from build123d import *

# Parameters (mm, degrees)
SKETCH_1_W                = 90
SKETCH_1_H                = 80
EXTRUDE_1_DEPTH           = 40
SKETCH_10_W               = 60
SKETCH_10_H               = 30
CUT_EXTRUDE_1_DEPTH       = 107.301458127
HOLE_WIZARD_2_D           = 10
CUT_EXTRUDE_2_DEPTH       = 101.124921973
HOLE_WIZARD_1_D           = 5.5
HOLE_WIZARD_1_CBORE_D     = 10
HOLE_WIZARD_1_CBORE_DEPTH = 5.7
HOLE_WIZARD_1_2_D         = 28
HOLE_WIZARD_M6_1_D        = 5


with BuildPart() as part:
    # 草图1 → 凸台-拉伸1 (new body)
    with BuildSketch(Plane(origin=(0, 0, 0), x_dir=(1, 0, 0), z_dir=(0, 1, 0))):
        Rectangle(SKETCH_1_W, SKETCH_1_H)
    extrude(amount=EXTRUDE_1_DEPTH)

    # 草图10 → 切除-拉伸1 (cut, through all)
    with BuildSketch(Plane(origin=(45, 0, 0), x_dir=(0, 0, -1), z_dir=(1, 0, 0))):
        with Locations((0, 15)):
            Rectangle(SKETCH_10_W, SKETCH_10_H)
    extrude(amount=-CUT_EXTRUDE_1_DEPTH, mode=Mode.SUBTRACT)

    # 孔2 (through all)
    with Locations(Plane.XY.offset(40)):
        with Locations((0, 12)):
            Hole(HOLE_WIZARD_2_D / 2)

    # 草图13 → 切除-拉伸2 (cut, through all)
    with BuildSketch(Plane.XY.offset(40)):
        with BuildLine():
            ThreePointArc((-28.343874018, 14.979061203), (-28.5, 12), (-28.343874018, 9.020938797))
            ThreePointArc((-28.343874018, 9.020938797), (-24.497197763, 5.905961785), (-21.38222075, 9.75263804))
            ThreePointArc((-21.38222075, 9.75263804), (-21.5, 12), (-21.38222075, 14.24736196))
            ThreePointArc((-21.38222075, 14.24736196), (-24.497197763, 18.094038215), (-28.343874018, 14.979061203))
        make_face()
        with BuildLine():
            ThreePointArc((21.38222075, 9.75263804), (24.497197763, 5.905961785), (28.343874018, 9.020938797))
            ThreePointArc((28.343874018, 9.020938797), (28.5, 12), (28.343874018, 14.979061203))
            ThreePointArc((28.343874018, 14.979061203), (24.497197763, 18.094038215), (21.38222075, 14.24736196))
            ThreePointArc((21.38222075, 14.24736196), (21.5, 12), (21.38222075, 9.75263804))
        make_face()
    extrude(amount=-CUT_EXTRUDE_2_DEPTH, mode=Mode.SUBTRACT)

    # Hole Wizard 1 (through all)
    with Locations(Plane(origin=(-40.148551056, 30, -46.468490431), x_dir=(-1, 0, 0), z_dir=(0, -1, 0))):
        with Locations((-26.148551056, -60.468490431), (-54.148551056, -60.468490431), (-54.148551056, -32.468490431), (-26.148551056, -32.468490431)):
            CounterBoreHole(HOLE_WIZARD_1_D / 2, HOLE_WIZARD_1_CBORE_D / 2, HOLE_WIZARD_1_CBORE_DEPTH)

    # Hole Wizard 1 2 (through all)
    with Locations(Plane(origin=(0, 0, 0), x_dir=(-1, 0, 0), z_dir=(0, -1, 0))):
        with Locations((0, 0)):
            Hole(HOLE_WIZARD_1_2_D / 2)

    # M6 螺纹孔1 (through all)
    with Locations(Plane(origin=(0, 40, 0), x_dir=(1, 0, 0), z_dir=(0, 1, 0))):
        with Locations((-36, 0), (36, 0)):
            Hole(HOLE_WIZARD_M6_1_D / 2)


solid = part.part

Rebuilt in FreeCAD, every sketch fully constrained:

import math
import FreeCAD as App
import Part
import Sketcher

V = App.Vector
Q = App.Units.Quantity

doc = App.newDocument("Part")
params = doc.addObject("Spreadsheet::Sheet", "Params")
for row, (alias, value) in enumerate([
    ("sketch1_width", "90 mm"),
    ("sketch1_height", "80 mm"),
    ("pad1_length", "40 mm"),
    ("sketch2_width", "30 mm"),
    ("sketch2_height", "60 mm"),
    ("sketch3_diameter", "10 mm"),
    ("hole_diameter", "10 mm"),
    ("sketch4_radius", "28.5 mm"),
    ("sketch4_radius2", "3.5 mm"),
    ("sketch5_diameter", "5.5 mm"),
    ("hole2_diameter", "5.5 mm"),
    ("hole2_cbore_diameter", "10 mm"),
    ("hole2_cbore_depth", "5.7 mm"),
    ("sketch6_diameter", "28 mm"),
    ("hole3_diameter", "28 mm"),
    ("sketch7_diameter", "5 mm"),
    ("hole4_diameter", "5 mm"),
], start=1):
    params.set(f"A{row}", alias)
    params.set(f"B{row}", "=" + value)
    params.setAlias(f"B{row}", alias)

body = doc.addObject("PartDesign::Body", "Body")

sketch1 = doc.addObject("Sketcher::SketchObject", "Sketch")
body.addObject(sketch1)
sketch1.AttachmentSupport = (doc.XZ_Plane, [""])
sketch1.MapMode = "FlatFace"
sketch1.addGeometry([
    Part.LineSegment(V(-45, -40, 0), V(-45, 40, 0)),
    Part.LineSegment(V(-45, 40, 0), V(45, 40, 0)),
    Part.LineSegment(V(45, 40, 0), V(45, -40, 0)),
    Part.LineSegment(V(45, -40, 0), V(-45, -40, 0)),
], False)
sketch1.addConstraint([
    Sketcher.Constraint("Coincident", 0, 2, 1, 1),
    Sketcher.Constraint("Coincident", 1, 2, 2, 1),
    Sketcher.Constraint("Coincident", 2, 2, 3, 1),
    Sketcher.Constraint("Coincident", 3, 2, 0, 1),
    Sketcher.Constraint("Vertical", 0),
    Sketcher.Constraint("Horizontal", 1),
    Sketcher.Constraint("Vertical", 2),
    Sketcher.Constraint("Horizontal", 3),
    Sketcher.Constraint("Symmetric", 0, 2, 2, 2, -1, 1),
    Sketcher.Constraint("DistanceX", 1, 1, 1, 2, Q("90 mm")),
    Sketcher.Constraint("DistanceY", 0, 1, 0, 2, Q("80 mm")),
])
sketch1.setExpression("Constraints[9]", "Params.sketch1_width")
sketch1.setExpression("Constraints[10]", "Params.sketch1_height")
pad1 = doc.addObject("PartDesign::Pad", "Pad")
body.addObject(pad1)
pad1.Profile = sketch1
pad1.setExpression("Length", "Params.pad1_length")
pad1.Reversed = True

sketch2 = doc.addObject("Sketcher::SketchObject", "Sketch001")
body.addObject(sketch2)
sketch2.AttachmentSupport = (doc.YZ_Plane, [""])
sketch2.MapMode = "FlatFace"
sketch2.AttachmentOffset = App.Placement(V(0, 0, 45), App.Rotation())
sketch2.addGeometry([
    Part.LineSegment(V(30, 30, 0), V(0, 30, 0)),
    Part.LineSegment(V(0, 30, 0), V(0, -30, 0)),
    Part.LineSegment(V(0, -30, 0), V(30, -30, 0)),
    Part.LineSegment(V(30, -30, 0), V(30, 30, 0)),
], False)
sketch2.addConstraint([
    Sketcher.Constraint("Coincident", 0, 2, 1, 1),
    Sketcher.Constraint("Coincident", 1, 2, 2, 1),
    Sketcher.Constraint("Coincident", 2, 2, 3, 1),
    Sketcher.Constraint("Coincident", 3, 2, 0, 1),
    Sketcher.Constraint("Horizontal", 0),
    Sketcher.Constraint("Vertical", 1),
    Sketcher.Constraint("Horizontal", 2),
    Sketcher.Constraint("Vertical", 3),
    Sketcher.Constraint("Symmetric", 0, 2, 1, 2, -1, 1),
    Sketcher.Constraint("DistanceX", 0, 2, 0, 1, Q("30 mm")),
    Sketcher.Constraint("DistanceY", 1, 2, 1, 1, Q("60 mm")),
])
sketch2.setExpression("Constraints[9]", "Params.sketch2_width")
sketch2.setExpression("Constraints[10]", "Params.sketch2_height")
pocket1 = doc.addObject("PartDesign::Pocket", "Pocket")
body.addObject(pocket1)
pocket1.Profile = sketch2
pocket1.Type = "ThroughAll"

sketch3 = doc.addObject("Sketcher::SketchObject", "Sketch002")
body.addObject(sketch3)
sketch3.AttachmentSupport = (doc.XY_Plane, [""])
sketch3.MapMode = "FlatFace"
sketch3.AttachmentOffset = App.Placement(V(0, 0, 40), App.Rotation())
sketch3.addGeometry(Part.Circle(V(0, 12, 0), V(0, 0, 1), 5), False)
sketch3.addConstraint([
    Sketcher.Constraint("PointOnObject", 0, 3, -2),
    Sketcher.Constraint("Diameter", 0, Q("10 mm")),
    Sketcher.Constraint("DistanceY", -1, 1, 0, 3, Q("12 mm")),
])
sketch3.setExpression("Constraints[1]", "Params.sketch3_diameter")
doc.recompute()
hole = doc.addObject("PartDesign::Hole", "Hole")
body.addObject(hole)
hole.Profile = sketch3
hole.ThreadType = "None"
hole.setExpression("Diameter", "Params.hole_diameter")
hole.DepthType = "ThroughAll"

sketch4 = doc.addObject("Sketcher::SketchObject", "Sketch003")
body.addObject(sketch4)
sketch4.AttachmentSupport = (doc.XY_Plane, [""])
sketch4.MapMode = "FlatFace"
sketch4.AttachmentOffset = App.Placement(V(0, 0, 40), App.Rotation())
sketch4.addGeometry([
    Part.ArcOfCircle(Part.Circle(V(0, 12, 0), V(0, 0, 1), 28.5), math.radians(174), math.radians(186)),
    Part.ArcOfCircle(Part.Circle(V(-24.9, 9.4, 0), V(0, 0, 1), 3.5), math.radians(-174), math.radians(6)),
    Part.ArcOfCircle(Part.Circle(V(0, 12, 0), V(0, 0, 1), 21.5), math.radians(174), math.radians(186)),
    Part.ArcOfCircle(Part.Circle(V(-24.9, 14.6, 0), V(0, 0, 1), 3.5), math.radians(-6), math.radians(174)),
    Part.ArcOfCircle(Part.Circle(V(24.9, 9.4, 0), V(0, 0, 1), 3.5), math.radians(174), math.radians(354)),
    Part.ArcOfCircle(Part.Circle(V(0, 12, 0), V(0, 0, 1), 28.5), math.radians(-6), math.radians(6)),
    Part.ArcOfCircle(Part.Circle(V(24.9, 14.6, 0), V(0, 0, 1), 3.5), math.radians(6), math.radians(186)),
    Part.ArcOfCircle(Part.Circle(V(0, 12, 0), V(0, 0, 1), 21.5), math.radians(-6), math.radians(6)),
], False)
sketch4.addConstraint([
    Sketcher.Constraint("Tangent", 0, 2, 1, 1),
    Sketcher.Constraint("Tangent", 1, 2, 2, 2),
    Sketcher.Constraint("Tangent", 2, 1, 3, 1),
    Sketcher.Constraint("Tangent", 3, 2, 0, 1),
    Sketcher.Constraint("Tangent", 4, 2, 5, 1),
    Sketcher.Constraint("Tangent", 5, 2, 6, 1),
    Sketcher.Constraint("Tangent", 6, 2, 7, 2),
    Sketcher.Constraint("Tangent", 7, 1, 4, 1),
    Sketcher.Constraint("Coincident", 2, 3, 0, 3),
    Sketcher.Constraint("Coincident", 5, 3, 0, 3),
    Sketcher.Constraint("Coincident", 7, 3, 0, 3),
    Sketcher.Constraint("Equal", 3, 4),
    Sketcher.Constraint("Equal", 0, 5),
    Sketcher.Constraint("Symmetric", 1, 3, 4, 3, -2),
    Sketcher.Constraint("Horizontal", 3, 3, 6, 3),
    Sketcher.Constraint("Vertical", 1, 3, 3, 3),
    Sketcher.Constraint("Radius", 0, Q("28.5 mm")),
    Sketcher.Constraint("Radius", 1, Q("3.5 mm")),
    Sketcher.Constraint("DistanceY", -1, 1, 0, 3, Q("12 mm")),
    Sketcher.Constraint("DistanceY", 0, 2, 1, 2, Q("0.731699 mm")),
])
sketch4.setExpression("Constraints[16]", "Params.sketch4_radius")
sketch4.setExpression("Constraints[17]", "Params.sketch4_radius2")
pocket2 = doc.addObject("PartDesign::Pocket", "Pocket001")
body.addObject(pocket2)
pocket2.Profile = sketch4
pocket2.Type = "ThroughAll"

sketch5 = doc.addObject("Sketcher::SketchObject", "Sketch004")
body.addObject(sketch5)
sketch5.AttachmentSupport = (doc.XZ_Plane, [""])
sketch5.MapMode = "FlatFace"
sketch5.AttachmentOffset = App.Placement(V(0, 0, -30), App.Rotation())
sketch5.addGeometry([
    Part.Circle(V(-14, 14, 0), V(0, 0, 1), 2.8),
    Part.Circle(V(14, 14, 0), V(0, 0, 1), 2.8),
    Part.Circle(V(14, -14, 0), V(0, 0, 1), 2.8),
    Part.Circle(V(-14, -14, 0), V(0, 0, 1), 2.8),
], False)
sketch5.addConstraint([
    Sketcher.Constraint("Equal", 0, 1),
    Sketcher.Constraint("Equal", 1, 2),
    Sketcher.Constraint("Equal", 2, 3),
    Sketcher.Constraint("Symmetric", 0, 3, 2, 3, -1, 1),
    Sketcher.Constraint("Symmetric", 1, 3, 3, 3, -1, 1),
    Sketcher.Constraint("Symmetric", 0, 3, 1, 3, -2),
    Sketcher.Constraint("Diameter", 0, Q("5.5 mm")),
    Sketcher.Constraint("DistanceX", 0, 3, -1, 1, Q("14 mm")),
    Sketcher.Constraint("DistanceY", -1, 1, 0, 3, Q("14 mm")),
])
sketch5.setExpression("Constraints[6]", "Params.sketch5_diameter")
doc.recompute()
hole2 = doc.addObject("PartDesign::Hole", "Hole001")
body.addObject(hole2)
hole2.Profile = sketch5
hole2.ThreadType = "None"
hole2.setExpression("Diameter", "Params.hole2_diameter")
hole2.DepthType = "ThroughAll"
hole2.HoleCutType = "Counterbore"
hole2.setExpression("HoleCutDiameter", "Params.hole2_cbore_diameter")
hole2.setExpression("HoleCutDepth", "Params.hole2_cbore_depth")

sketch6 = doc.addObject("Sketcher::SketchObject", "Sketch005")
body.addObject(sketch6)
sketch6.AttachmentSupport = (doc.XZ_Plane, [""])
sketch6.MapMode = "FlatFace"
sketch6.addGeometry(Part.Circle(V(0, 0, 0), V(0, 0, 1), 14), False)
sketch6.addConstraint([
    Sketcher.Constraint("Coincident", 0, 3, -1, 1),
    Sketcher.Constraint("Diameter", 0, Q("28 mm")),
])
sketch6.setExpression("Constraints[1]", "Params.sketch6_diameter")
doc.recompute()
hole3 = doc.addObject("PartDesign::Hole", "Hole002")
body.addObject(hole3)
hole3.Profile = sketch6
hole3.ThreadType = "None"
hole3.setExpression("Diameter", "Params.hole3_diameter")
hole3.DepthType = "ThroughAll"

sketch7 = doc.addObject("Sketcher::SketchObject", "Sketch006")
body.addObject(sketch7)
sketch7.AttachmentSupport = (doc.XZ_Plane, [""])
sketch7.MapMode = "FlatFace"
sketch7.AttachmentOffset = App.Placement(V(0, 0, -40), App.Rotation())
sketch7.addGeometry([
    Part.Circle(V(-36, 0, 0), V(0, 0, 1), 2.5),
    Part.Circle(V(36, 0, 0), V(0, 0, 1), 2.5),
], False)
sketch7.addConstraint([
    Sketcher.Constraint("Equal", 0, 1),
    Sketcher.Constraint("Symmetric", 0, 3, 1, 3, -1, 1),
    Sketcher.Constraint("PointOnObject", 0, 3, -1),
    Sketcher.Constraint("Diameter", 0, Q("5 mm")),
    Sketcher.Constraint("DistanceX", 0, 3, -1, 1, Q("36 mm")),
])
sketch7.setExpression("Constraints[3]", "Params.sketch7_diameter")
doc.recompute()
hole4 = doc.addObject("PartDesign::Hole", "Hole003")
body.addObject(hole4)
hole4.Profile = sketch7
hole4.ThreadType = "None"
hole4.setExpression("Diameter", "Params.hole4_diameter")
hole4.DepthType = "ThroughAll"
hole4.Reversed = True

doc.recompute()
